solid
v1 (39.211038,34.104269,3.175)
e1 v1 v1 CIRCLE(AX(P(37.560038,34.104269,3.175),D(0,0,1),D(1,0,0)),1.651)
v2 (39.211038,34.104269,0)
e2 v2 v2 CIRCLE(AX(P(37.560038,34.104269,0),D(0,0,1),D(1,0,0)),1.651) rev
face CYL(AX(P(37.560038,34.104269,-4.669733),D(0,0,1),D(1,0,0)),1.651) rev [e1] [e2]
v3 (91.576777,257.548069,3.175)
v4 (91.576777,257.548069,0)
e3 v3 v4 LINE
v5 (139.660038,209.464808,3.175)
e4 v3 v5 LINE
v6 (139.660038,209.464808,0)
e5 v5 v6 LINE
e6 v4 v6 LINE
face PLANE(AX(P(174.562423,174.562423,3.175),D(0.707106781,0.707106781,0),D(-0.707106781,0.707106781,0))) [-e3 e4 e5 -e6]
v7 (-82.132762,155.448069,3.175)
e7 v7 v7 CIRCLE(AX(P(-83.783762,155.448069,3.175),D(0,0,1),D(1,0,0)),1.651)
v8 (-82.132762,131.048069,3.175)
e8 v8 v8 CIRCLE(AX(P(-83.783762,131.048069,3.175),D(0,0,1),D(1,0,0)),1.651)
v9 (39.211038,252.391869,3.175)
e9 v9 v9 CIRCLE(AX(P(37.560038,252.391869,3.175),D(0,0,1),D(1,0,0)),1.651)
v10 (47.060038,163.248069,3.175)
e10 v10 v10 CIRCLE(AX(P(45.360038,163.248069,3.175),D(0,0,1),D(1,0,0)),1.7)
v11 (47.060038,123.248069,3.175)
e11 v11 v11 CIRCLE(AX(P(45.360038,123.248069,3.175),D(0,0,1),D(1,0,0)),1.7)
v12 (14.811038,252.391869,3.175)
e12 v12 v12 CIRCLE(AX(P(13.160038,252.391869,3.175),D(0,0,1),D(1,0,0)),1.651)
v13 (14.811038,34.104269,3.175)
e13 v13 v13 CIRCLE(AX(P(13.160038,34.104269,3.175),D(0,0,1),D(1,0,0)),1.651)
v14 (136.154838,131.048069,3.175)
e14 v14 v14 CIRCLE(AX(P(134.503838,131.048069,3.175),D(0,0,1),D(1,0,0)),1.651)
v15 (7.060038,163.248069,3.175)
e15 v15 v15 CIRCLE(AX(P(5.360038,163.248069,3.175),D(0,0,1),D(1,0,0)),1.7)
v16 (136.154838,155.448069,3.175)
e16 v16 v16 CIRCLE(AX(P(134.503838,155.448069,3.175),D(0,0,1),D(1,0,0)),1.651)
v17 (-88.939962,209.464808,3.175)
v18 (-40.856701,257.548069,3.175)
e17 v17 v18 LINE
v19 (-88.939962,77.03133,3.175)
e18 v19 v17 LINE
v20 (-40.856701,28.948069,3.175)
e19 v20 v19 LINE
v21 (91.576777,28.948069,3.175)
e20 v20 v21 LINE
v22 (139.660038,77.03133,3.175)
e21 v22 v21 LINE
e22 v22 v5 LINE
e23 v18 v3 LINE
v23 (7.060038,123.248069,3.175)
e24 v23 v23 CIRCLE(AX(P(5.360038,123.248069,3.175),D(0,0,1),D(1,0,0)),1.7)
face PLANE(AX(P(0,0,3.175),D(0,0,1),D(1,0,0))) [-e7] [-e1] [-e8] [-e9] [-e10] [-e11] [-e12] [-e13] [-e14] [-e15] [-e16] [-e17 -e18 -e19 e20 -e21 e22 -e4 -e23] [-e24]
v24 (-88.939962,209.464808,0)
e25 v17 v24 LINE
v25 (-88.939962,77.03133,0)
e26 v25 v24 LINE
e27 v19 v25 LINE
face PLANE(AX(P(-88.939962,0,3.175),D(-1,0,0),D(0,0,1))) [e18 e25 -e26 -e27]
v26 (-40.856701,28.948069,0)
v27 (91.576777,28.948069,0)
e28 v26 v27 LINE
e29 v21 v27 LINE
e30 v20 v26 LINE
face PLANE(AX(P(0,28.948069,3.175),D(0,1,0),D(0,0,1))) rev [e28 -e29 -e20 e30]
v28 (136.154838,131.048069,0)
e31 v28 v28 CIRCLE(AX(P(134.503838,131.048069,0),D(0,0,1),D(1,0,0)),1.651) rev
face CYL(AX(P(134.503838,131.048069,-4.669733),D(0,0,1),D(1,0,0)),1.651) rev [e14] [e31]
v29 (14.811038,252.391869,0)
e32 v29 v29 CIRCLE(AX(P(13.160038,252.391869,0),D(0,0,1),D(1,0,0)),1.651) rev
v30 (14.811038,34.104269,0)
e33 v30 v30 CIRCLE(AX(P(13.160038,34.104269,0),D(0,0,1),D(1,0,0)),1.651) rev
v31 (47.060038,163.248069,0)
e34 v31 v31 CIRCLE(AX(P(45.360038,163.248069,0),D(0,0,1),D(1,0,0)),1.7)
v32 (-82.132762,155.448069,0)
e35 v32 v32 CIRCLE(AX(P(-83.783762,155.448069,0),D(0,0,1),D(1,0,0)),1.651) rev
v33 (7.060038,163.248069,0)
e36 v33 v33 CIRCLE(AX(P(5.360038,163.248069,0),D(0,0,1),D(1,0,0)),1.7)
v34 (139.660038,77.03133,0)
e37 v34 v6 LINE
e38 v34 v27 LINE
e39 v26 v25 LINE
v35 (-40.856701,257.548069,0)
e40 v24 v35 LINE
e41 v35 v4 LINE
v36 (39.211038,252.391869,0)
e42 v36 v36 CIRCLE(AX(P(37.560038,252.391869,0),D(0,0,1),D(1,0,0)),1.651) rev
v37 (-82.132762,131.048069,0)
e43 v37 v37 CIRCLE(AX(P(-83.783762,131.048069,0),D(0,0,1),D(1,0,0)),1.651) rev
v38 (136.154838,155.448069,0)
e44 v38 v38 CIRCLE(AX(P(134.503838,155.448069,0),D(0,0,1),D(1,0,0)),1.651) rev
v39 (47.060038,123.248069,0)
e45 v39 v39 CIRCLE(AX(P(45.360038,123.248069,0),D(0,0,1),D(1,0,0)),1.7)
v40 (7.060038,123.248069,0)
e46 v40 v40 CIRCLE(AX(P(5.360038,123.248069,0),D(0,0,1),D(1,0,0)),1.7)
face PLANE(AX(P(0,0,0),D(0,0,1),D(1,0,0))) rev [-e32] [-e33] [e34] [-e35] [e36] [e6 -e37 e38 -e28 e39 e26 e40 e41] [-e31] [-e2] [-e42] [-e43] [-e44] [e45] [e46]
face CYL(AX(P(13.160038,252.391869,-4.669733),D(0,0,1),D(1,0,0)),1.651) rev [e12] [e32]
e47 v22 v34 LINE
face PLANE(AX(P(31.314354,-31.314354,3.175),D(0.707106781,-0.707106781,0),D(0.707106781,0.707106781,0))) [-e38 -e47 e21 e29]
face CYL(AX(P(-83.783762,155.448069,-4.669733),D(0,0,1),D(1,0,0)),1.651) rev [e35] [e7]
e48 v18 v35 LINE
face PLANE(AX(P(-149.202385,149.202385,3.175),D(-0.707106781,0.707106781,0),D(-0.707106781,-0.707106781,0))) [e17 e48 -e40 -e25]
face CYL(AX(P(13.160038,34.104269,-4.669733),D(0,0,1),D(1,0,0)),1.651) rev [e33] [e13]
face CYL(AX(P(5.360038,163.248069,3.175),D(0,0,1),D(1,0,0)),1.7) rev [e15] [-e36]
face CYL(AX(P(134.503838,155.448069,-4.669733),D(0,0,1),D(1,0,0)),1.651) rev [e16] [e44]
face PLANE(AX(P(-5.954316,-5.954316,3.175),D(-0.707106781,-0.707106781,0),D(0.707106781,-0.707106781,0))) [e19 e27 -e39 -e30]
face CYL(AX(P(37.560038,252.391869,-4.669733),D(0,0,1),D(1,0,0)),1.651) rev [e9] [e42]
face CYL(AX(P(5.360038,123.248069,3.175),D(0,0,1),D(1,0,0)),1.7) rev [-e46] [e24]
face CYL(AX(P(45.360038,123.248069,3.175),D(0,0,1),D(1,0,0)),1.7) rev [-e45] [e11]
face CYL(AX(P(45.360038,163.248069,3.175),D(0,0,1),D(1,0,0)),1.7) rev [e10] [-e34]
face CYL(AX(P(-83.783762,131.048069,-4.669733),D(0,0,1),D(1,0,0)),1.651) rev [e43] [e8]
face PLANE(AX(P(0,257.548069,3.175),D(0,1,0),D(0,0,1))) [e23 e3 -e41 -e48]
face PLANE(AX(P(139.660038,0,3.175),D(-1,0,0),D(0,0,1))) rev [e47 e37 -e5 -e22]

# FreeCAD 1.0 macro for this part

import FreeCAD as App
import Part
import Sketcher
from FreeCAD import Vector


def add_polygon(sketch, points):
    """Adds a closed chain of lines whose ends are joined by coincident constraints."""
    first, n = sketch.GeometryCount, len(points)
    for a, b in zip(points, points[1:] + points[:1]):
        sketch.addGeometry(Part.LineSegment(App.Vector(*a, 0), App.Vector(*b, 0)), False)
    for i in range(n):
        sketch.addConstraint(Sketcher.Constraint("Coincident", first + i, 2, first + (i + 1) % n, 1))

doc = App.newDocument("Part")
params = doc.addObject("Spreadsheet::Sheet", "Params")
for row, (alias, value) in enumerate([
    ("sketch1_length", "68 mm"),
    ("pad1_length", "3.175 mm"),
    ("sketch2_diameter", "3.4 mm"),
    ("hole_diameter", "3.4 mm"),
    ("pocket1_length", "3.175 mm"),
], start=1):
    params.set(f"A{row}", alias)
    params.set(f"B{row}", "=" + value)
    params.setAlias(f"B{row}", alias)

body = doc.addObject("PartDesign::Body", "Body")

# Sketch on XY plane
sketch1 = doc.addObject("Sketcher::SketchObject", "Sketch")
body.addObject(sketch1)
sketch1.AttachmentSupport = (doc.XY_Plane, [""])
sketch1.MapMode = "FlatFace"
add_polygon(sketch1, [(-88.939962, 77.03133), (-40.856701, 28.948069), (91.576777, 28.948069), (139.660038, 77.03133), (139.660038, 209.464808), (91.576777, 257.548069), (-40.856701, 257.548069), (-88.939962, 209.464808)])  # lines 0-7
sketch1.addConstraint([
    Sketcher.Constraint("Horizontal", 1),
    Sketcher.Constraint("Vertical", 3),
    Sketcher.Constraint("Horizontal", 5),
    Sketcher.Constraint("Vertical", 7),
    Sketcher.Constraint("Perpendicular", 0, 2),
    Sketcher.Constraint("Perpendicular", 2, 4),
    Sketcher.Constraint("Perpendicular", 4, 6),
    Sketcher.Constraint("Horizontal", 3, 2, 6, 2),
    Sketcher.Constraint("Horizontal", 2, 2, 7, 2),
    Sketcher.Constraint("Vertical", 1, 2, 4, 2),
    Sketcher.Constraint("Vertical", 0, 2, 5, 2),
    Sketcher.Constraint("Equal", 5, 3),
    Sketcher.Constraint("Distance", 0, 68.0),
    Sketcher.Constraint("DistanceY", 1, 2, 4, 2, 228.6),
    Sketcher.Constraint("DistanceX", 0, 2, -1, 1, 40.856701),
    Sketcher.Constraint("DistanceY", -1, 1, 0, 2, 28.948069),
])
sketch1.setExpression("Constraints[20]", "Params.sketch1_length")
pad1 = doc.addObject("PartDesign::Pad", "Pad")
body.addObject(pad1)
pad1.Profile = sketch1
pad1.setExpression("Length", "Params.pad1_length")

# Sketch on XY plane
sketch2 = doc.addObject("Sketcher::SketchObject", "Sketch001")
body.addObject(sketch2)
sketch2.AttachmentSupport = (doc.XY_Plane, [""])
sketch2.MapMode = "FlatFace"
sketch2.AttachmentOffset = App.Placement(Vector(0, 0, 3.175), App.Rotation())
sketch2.addGeometry([
    Part.Circle(Vector(5.360038, 163.248069, 0), Vector(0, 0, 1), 1.7),
    Part.Circle(Vector(45.360038, 123.248069, 0), Vector(0, 0, 1), 1.7),
    Part.Circle(Vector(45.360038, 163.248069, 0), Vector(0, 0, 1), 1.7),
    Part.Circle(Vector(5.360038, 123.248069, 0), Vector(0, 0, 1), 1.7),
], False)
sketch2.addConstraint([
    Sketcher.Constraint("Equal", 0, 1),
    Sketcher.Constraint("Equal", 1, 2),
    Sketcher.Constraint("Equal", 2, 3),
    Sketcher.Constraint("Horizontal", 0, 3, 2, 3),
    Sketcher.Constraint("Horizontal", 1, 3, 3, 3),
    Sketcher.Constraint("Vertical", 1, 3, 2, 3),
    Sketcher.Constraint("Vertical", 0, 3, 3, 3),
    Sketcher.Constraint("Diameter", 0, 3.4),
    Sketcher.Constraint("DistanceX", 0, 3, 1, 3, 40.0),
    Sketcher.Constraint("DistanceY", 1, 3, 0, 3, 40.0),
    Sketcher.Constraint("DistanceX", -1, 1, 0, 3, 5.360038),
    Sketcher.Constraint("DistanceY", -1, 1, 0, 3, 163.248069),
])
sketch2.setExpression("Constraints[7]", "Params.sketch2_diameter")
doc.recompute()
hole = doc.addObject("PartDesign::Hole", "Hole")
body.addObject(hole)
hole.Profile = sketch2
hole.ThreadType = "None"
hole.setExpression("Diameter", "Params.hole_diameter")
hole.DepthType = "ThroughAll"

# Sketch on XY plane
sketch3 = doc.addObject("Sketcher::SketchObject", "Sketch002")
body.addObject(sketch3)
sketch3.AttachmentSupport = (doc.XY_Plane, [""])
sketch3.MapMode = "FlatFace"
sketch3.AttachmentOffset = App.Placement(Vector(0, 0, 3.175), App.Rotation())
sketch3.addGeometry([
    Part.Circle(Vector(37.560038, 252.391869, 0), Vector(0, 0, 1), 1.651),  # 0
    Part.Circle(Vector(13.160038, 252.391869, 0), Vector(0, 0, 1), 1.651),  # 1
    Part.Circle(Vector(-83.783762, 155.448069, 0), Vector(0, 0, 1), 1.651),  # 2
    Part.Circle(Vector(-83.783762, 131.048069, 0), Vector(0, 0, 1), 1.651),  # 3
    Part.Circle(Vector(13.160038, 34.104269, 0), Vector(0, 0, 1), 1.651),  # 4
    Part.Circle(Vector(37.560038, 34.104269, 0), Vector(0, 0, 1), 1.651),  # 5
    Part.Circle(Vector(134.503838, 131.048069, 0), Vector(0, 0, 1), 1.651),  # 6
    Part.Circle(Vector(134.503838, 155.448069, 0), Vector(0, 0, 1), 1.651),  # 7
], False)
sketch3.addConstraint([
    Sketcher.Constraint("Equal", 0, 1),
    Sketcher.Constraint("Equal", 1, 2),
    Sketcher.Constraint("Equal", 2, 3),
    Sketcher.Constraint("Equal", 3, 4),
    Sketcher.Constraint("Equal", 4, 5),
    Sketcher.Constraint("Equal", 5, 6),
    Sketcher.Constraint("Equal", 6, 7),
    Sketcher.Constraint("Horizontal", 0, 3, 1, 3),
    Sketcher.Constraint("Horizontal", 4, 3, 5, 3),
    Sketcher.Constraint("Horizontal", 3, 3, 6, 3),
    Sketcher.Constraint("Horizontal", 2, 3, 7, 3),
    Sketcher.Constraint("Vertical", 2, 3, 3, 3),
    Sketcher.Constraint("Vertical", 1, 3, 4, 3),
    Sketcher.Constraint("Vertical", 0, 3, 5, 3),
    Sketcher.Constraint("Vertical", 6, 3, 7, 3),
    Sketcher.Constraint("Diameter", 0, 3.302),
    Sketcher.Constraint("DistanceX", 1, 3, 0, 3, 24.4),
    Sketcher.Constraint("DistanceY", 3, 3, 2, 3, 24.4),
    Sketcher.Constraint("DistanceX", 2, 3, 1, 3, 96.9438),
    Sketcher.Constraint("DistanceY", 2, 3, 1, 3, 96.9438),
    Sketcher.Constraint("DistanceY", 4, 3, 3, 3, 96.9438),
    Sketcher.Constraint("DistanceX", 5, 3, 6, 3, 96.9438),
    Sketcher.Constraint("DistanceX", -1, 1, 0, 3, 37.560038),
    Sketcher.Constraint("DistanceY", -1, 1, 0, 3, 252.391869),
])
pocket1 = doc.addObject("PartDesign::Pocket", "Pocket")
body.addObject(pocket1)
pocket1.Profile = sketch3
pocket1.setExpression("Length", "Params.pocket1_length")

doc.recompute()
